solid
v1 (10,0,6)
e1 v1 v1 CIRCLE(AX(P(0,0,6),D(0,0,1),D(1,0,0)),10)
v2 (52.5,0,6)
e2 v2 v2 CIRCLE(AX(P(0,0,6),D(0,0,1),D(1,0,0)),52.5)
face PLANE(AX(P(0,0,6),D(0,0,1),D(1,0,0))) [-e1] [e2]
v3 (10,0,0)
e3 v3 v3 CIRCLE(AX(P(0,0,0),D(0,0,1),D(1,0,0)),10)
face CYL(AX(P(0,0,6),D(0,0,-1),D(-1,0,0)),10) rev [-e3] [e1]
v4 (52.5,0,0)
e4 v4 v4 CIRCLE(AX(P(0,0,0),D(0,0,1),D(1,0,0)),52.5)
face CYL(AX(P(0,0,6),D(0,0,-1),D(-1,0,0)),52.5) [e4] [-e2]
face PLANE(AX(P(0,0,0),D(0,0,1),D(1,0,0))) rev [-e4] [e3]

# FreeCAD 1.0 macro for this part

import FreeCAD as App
import Part
import Sketcher

doc = App.newDocument("Part")
body = doc.addObject("PartDesign::Body", "Body")

# Sketch on XY plane
sketch1 = body.newObject("Sketcher::SketchObject", "Sketch")
sketch1.AttachmentSupport = (doc.getObject("XY_Plane"), [""])
sketch1.MapMode = "FlatFace"
sketch1.addGeometry([
    Part.Circle(App.Vector(0, 0, 0), App.Vector(0, 0, 1), 52),
    Part.Circle(App.Vector(0, 0, 0), App.Vector(0, 0, 1), 10),
], False)
sketch1.addConstraint([
    Sketcher.Constraint("Coincident", 0, 3, -1, 1),
    Sketcher.Constraint("Coincident", 1, 3, -1, 1),
    Sketcher.Constraint("Diameter", 0, 105.0),
    Sketcher.Constraint("Diameter", 1, 20.0),
])
pad1 = body.newObject("PartDesign::Pad", "Pad")
pad1.Profile = sketch1
pad1.Length = 6

doc.recompute()
